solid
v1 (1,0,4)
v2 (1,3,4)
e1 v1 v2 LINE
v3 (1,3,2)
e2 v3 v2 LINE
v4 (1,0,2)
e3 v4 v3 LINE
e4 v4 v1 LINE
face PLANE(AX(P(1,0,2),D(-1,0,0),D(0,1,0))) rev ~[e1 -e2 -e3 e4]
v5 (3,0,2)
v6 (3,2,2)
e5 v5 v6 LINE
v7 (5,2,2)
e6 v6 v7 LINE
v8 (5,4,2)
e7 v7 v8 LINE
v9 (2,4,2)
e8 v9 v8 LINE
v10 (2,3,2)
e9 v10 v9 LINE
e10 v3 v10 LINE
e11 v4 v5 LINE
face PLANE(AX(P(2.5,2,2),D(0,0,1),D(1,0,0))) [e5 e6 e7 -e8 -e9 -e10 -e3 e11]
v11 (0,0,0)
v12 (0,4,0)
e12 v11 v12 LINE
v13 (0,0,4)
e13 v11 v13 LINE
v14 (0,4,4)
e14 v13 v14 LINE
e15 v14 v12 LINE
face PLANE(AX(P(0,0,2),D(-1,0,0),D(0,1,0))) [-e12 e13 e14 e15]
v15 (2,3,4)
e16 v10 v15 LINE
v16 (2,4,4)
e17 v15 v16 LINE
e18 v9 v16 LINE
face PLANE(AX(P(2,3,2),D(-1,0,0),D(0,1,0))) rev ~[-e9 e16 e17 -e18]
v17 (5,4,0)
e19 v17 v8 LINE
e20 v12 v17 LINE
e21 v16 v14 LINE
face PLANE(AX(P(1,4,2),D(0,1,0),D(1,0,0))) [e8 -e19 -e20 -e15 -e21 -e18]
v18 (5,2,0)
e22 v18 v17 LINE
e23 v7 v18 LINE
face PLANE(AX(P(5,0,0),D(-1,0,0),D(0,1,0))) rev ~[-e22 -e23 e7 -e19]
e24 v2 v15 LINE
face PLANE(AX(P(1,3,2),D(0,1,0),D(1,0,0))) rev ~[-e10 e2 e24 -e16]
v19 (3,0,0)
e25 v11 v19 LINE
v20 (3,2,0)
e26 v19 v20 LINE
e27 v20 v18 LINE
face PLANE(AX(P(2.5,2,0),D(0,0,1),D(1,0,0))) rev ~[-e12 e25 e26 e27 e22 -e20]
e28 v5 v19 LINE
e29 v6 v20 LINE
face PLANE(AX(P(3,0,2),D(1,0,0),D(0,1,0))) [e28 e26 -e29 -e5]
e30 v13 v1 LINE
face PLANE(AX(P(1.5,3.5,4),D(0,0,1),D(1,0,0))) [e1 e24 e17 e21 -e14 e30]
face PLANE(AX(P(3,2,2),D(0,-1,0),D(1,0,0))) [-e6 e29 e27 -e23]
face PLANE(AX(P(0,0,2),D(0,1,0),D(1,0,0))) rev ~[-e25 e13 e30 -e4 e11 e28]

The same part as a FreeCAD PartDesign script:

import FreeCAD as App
import Part
import Sketcher
from FreeCAD import Vector


def add_polygon(sketch, points):
    """Adds a closed chain of lines whose ends are joined by coincident constraints."""
    first, n = sketch.GeometryCount, len(points)
    for a, b in zip(points, points[1:] + points[:1]):
        sketch.addGeometry(Part.LineSegment(App.Vector(*a, 0), App.Vector(*b, 0)), False)
    for i in range(n):
        sketch.addConstraint(Sketcher.Constraint("Coincident", first + i, 2, first + (i + 1) % n, 1))

doc = App.newDocument("Part")
params = doc.addObject("Spreadsheet::Sheet", "Params")
for row, (alias, value) in enumerate([
    ("sketch1_width", "5 mm"),
    ("sketch1_height", "4 mm"),
    ("pad1_length", "2 mm"),
    ("sketch2_width", "2 mm"),
    ("pocket1_length", "2 mm"),
    ("sketch3_width", "1 mm"),
    ("sketch3_height", "4 mm"),
    ("pad2_length", "2 mm"),
    ("sketch4_width", "1 mm"),
    ("pad3_length", "2 mm"),
], start=1):
    params.set(f"A{row}", alias)
    params.set(f"B{row}", "=" + value)
    params.setAlias(f"B{row}", alias)

body = doc.addObject("PartDesign::Body", "Body")

# Sketch on XY plane
sketch1 = doc.addObject("Sketcher::SketchObject", "Sketch")
body.addObject(sketch1)
sketch1.AttachmentSupport = (doc.XY_Plane, [""])
sketch1.MapMode = "FlatFace"
add_polygon(sketch1, [(0, 4), (0, 0), (5, 0), (5, 4)])  # lines 0-3
sketch1.addConstraint([
    Sketcher.Constraint("Vertical", 0),
    Sketcher.Constraint("Horizontal", 1),
    Sketcher.Constraint("Vertical", 2),
    Sketcher.Constraint("Horizontal", 3),
    Sketcher.Constraint("Coincident", 0, 2, -1, 1),
    Sketcher.Constraint("DistanceX", 1, 1, 1, 2, 5.0),
    Sketcher.Constraint("DistanceY", 0, 2, 0, 1, 4.0),
])
sketch1.setExpression("Constraints[9]", "Params.sketch1_width")
sketch1.setExpression("Constraints[10]", "Params.sketch1_height")
pad1 = doc.addObject("PartDesign::Pad", "Pad")
body.addObject(pad1)
pad1.Profile = sketch1
pad1.setExpression("Length", "Params.pad1_length")

# Sketch on XY plane
sketch2 = doc.addObject("Sketcher::SketchObject", "Sketch001")
body.addObject(sketch2)
sketch2.AttachmentSupport = (doc.XY_Plane, [""])
sketch2.MapMode = "FlatFace"
sketch2.AttachmentOffset = App.Placement(Vector(0, 0, 2), App.Rotation())
add_polygon(sketch2, [(3, 2), (3, 0), (5, 0), (5, 2)])  # lines 0-3
sketch2.addConstraint([
    Sketcher.Constraint("Vertical", 0),
    Sketcher.Constraint("Horizontal", 1),
    Sketcher.Constraint("Vertical", 2),
    Sketcher.Constraint("Horizontal", 3),
    Sketcher.Constraint("PointOnObject", 0, 2, -1),
    Sketcher.Constraint("Equal", 3, 0),
    Sketcher.Constraint("DistanceX", 1, 1, 1, 2, 2.0),
    Sketcher.Constraint("DistanceX", -1, 1, 0, 2, 3.0),
])
sketch2.setExpression("Constraints[10]", "Params.sketch2_width")
pocket1 = doc.addObject("PartDesign::Pocket", "Pocket")
body.addObject(pocket1)
pocket1.Profile = sketch2
pocket1.setExpression("Length", "Params.pocket1_length")

# Sketch on XY plane
sketch3 = doc.addObject("Sketcher::SketchObject", "Sketch002")
body.addObject(sketch3)
sketch3.AttachmentSupport = (doc.XY_Plane, [""])
sketch3.MapMode = "FlatFace"
sketch3.AttachmentOffset = App.Placement(Vector(0, 0, 2), App.Rotation())
add_polygon(sketch3, [(0, 4), (0, 0), (1, 0), (1, 4)])  # lines 0-3
sketch3.addConstraint([
    Sketcher.Constraint("Vertical", 0),
    Sketcher.Constraint("Horizontal", 1),
    Sketcher.Constraint("Vertical", 2),
    Sketcher.Constraint("Horizontal", 3),
    Sketcher.Constraint("Coincident", 0, 2, -1, 1),
    Sketcher.Constraint("DistanceX", 1, 1, 1, 2, 1.0),
    Sketcher.Constraint("DistanceY", 0, 2, 0, 1, 4.0),
])
sketch3.setExpression("Constraints[9]", "Params.sketch3_width")
sketch3.setExpression("Constraints[10]", "Params.sketch3_height")
pad2 = doc.addObject("PartDesign::Pad", "Pad001")
body.addObject(pad2)
pad2.Profile = sketch3
pad2.setExpression("Length", "Params.pad2_length")

# Sketch on XY plane
sketch4 = doc.addObject("Sketcher::SketchObject", "Sketch003")
body.addObject(sketch4)
sketch4.AttachmentSupport = (doc.XY_Plane, [""])
sketch4.MapMode = "FlatFace"
sketch4.AttachmentOffset = App.Placement(Vector(0, 0, 2), App.Rotation())
add_polygon(sketch4, [(1, 4), (1, 3), (2, 3), (2, 4)])  # lines 0-3
sketch4.addConstraint([
    Sketcher.Constraint("Vertical", 0),
    Sketcher.Constraint("Horizontal", 1),
    Sketcher.Constraint("Vertical", 2),
    Sketcher.Constraint("Horizontal", 3),
    Sketcher.Constraint("Equal", 3, 0),
    Sketcher.Constraint("DistanceX", 1, 1, 1, 2, 1.0),
    Sketcher.Constraint("DistanceX", -1, 1, 0, 2, 1.0),
    Sketcher.Constraint("DistanceY", -1, 1, 0, 2, 3.0),
])
sketch4.setExpression("Constraints[9]", "Params.sketch4_width")
pad3 = doc.addObject("PartDesign::Pad", "Pad002")
body.addObject(pad3)
pad3.Profile = sketch4
pad3.setExpression("Length", "Params.pad3_length")

doc.recompute()
